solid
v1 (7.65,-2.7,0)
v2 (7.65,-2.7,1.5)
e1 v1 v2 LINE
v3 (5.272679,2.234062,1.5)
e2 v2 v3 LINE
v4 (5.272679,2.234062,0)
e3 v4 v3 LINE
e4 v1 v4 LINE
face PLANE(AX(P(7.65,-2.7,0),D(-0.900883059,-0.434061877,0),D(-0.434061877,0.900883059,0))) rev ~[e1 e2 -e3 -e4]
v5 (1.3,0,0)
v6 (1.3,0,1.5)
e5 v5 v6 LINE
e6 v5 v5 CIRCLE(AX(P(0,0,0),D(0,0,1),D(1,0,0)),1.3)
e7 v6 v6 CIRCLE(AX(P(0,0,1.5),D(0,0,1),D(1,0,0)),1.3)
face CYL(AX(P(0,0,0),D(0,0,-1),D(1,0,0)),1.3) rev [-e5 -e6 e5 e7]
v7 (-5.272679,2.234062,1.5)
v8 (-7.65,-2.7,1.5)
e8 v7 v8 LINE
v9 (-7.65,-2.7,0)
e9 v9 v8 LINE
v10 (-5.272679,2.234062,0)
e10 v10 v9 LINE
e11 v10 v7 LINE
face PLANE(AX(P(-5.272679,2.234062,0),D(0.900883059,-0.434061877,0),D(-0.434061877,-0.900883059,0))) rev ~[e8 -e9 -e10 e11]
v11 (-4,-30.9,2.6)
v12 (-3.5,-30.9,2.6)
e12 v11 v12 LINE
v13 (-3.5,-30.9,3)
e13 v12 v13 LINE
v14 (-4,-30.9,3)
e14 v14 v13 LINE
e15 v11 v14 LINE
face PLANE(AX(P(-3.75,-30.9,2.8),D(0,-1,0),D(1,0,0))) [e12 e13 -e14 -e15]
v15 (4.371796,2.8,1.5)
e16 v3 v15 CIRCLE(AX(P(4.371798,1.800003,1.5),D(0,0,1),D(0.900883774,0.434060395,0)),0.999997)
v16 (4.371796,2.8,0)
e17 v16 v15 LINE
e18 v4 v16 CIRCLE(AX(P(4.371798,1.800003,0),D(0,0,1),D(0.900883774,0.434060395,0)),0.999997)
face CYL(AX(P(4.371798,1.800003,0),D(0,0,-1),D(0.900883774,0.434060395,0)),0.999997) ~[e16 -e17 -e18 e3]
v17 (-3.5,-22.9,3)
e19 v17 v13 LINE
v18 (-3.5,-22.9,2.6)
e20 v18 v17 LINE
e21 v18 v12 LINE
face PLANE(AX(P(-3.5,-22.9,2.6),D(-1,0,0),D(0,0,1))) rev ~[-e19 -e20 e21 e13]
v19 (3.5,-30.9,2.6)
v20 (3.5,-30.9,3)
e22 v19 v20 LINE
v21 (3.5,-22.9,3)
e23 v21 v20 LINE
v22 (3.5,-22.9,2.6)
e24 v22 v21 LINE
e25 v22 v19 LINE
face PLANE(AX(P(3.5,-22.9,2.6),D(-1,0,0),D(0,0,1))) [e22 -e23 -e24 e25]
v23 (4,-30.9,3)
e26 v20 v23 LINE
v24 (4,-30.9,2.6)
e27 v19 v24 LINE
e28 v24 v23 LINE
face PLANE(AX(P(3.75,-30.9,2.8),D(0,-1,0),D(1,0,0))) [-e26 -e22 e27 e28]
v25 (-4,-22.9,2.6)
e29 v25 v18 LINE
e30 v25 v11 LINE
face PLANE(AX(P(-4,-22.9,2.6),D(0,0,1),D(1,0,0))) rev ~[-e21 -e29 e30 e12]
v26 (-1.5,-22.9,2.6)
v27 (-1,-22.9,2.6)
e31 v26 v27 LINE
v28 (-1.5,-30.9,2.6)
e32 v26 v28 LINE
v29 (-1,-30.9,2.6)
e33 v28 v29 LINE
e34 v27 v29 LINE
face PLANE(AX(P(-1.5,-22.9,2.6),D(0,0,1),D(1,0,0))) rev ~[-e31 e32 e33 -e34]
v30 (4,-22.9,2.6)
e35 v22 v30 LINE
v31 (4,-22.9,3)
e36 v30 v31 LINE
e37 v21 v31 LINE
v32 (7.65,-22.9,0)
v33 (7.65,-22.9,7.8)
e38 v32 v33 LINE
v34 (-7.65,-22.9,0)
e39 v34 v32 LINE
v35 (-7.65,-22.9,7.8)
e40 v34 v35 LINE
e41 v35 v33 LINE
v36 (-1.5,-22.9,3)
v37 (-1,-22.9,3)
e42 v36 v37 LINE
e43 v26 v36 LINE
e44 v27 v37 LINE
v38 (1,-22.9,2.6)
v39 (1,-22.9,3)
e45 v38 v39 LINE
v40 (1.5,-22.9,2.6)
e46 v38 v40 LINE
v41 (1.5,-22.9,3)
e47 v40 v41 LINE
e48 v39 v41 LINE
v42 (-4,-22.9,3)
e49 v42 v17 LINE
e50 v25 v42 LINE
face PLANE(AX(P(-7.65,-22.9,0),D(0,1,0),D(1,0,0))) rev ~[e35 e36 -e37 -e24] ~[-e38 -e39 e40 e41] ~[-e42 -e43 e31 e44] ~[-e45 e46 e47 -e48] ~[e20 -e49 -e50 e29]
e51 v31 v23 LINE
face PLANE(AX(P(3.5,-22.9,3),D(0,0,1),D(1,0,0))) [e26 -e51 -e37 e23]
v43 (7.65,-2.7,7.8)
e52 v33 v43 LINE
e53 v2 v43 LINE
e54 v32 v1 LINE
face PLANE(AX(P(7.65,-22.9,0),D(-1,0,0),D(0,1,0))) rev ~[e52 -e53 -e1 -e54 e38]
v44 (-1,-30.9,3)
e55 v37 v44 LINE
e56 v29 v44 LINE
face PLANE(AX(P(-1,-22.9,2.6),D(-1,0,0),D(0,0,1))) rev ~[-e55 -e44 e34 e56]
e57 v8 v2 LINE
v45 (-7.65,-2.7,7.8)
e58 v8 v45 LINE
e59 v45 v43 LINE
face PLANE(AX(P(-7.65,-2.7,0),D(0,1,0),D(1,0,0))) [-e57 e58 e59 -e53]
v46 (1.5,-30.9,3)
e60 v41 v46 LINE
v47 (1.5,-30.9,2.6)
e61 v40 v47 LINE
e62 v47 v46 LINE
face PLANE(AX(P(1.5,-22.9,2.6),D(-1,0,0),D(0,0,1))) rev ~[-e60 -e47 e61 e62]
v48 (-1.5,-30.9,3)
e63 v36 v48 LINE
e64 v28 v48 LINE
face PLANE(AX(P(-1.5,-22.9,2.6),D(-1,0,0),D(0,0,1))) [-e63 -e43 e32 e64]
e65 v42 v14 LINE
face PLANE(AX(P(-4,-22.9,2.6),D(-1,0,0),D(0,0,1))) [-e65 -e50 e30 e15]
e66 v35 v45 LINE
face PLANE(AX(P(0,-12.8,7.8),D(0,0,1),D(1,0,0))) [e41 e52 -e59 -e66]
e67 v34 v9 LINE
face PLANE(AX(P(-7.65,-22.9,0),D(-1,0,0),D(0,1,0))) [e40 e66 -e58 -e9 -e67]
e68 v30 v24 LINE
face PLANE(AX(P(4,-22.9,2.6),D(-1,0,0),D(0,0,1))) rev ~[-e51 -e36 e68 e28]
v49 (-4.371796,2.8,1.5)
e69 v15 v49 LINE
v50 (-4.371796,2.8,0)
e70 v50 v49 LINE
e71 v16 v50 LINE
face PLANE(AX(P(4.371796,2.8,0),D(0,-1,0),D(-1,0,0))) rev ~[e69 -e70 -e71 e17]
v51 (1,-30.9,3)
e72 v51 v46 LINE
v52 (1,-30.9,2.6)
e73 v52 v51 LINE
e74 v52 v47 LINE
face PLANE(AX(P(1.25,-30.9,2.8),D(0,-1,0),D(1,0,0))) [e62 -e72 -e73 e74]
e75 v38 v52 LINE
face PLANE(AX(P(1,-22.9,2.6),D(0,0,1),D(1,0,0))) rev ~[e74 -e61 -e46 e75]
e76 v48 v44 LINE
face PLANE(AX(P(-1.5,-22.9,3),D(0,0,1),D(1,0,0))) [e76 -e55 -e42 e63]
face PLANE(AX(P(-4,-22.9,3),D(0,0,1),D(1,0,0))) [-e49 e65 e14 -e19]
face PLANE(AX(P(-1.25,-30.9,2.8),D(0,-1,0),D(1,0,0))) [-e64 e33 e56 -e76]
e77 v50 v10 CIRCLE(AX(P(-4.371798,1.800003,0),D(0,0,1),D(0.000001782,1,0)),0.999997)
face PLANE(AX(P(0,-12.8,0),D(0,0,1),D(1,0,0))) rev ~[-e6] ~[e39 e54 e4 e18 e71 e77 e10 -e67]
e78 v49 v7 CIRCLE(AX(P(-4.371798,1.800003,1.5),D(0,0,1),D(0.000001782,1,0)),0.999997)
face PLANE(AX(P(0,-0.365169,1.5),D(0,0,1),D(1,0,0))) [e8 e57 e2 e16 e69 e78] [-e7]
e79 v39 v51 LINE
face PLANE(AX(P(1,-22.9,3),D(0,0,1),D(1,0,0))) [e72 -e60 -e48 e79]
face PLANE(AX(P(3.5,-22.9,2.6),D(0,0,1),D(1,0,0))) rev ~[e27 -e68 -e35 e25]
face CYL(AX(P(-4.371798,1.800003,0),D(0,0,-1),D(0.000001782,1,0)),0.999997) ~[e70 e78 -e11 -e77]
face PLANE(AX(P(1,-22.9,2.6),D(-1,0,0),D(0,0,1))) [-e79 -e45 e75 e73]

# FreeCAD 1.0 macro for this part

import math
import FreeCAD as App
import Part
import Sketcher
from FreeCAD import Vector
Q = App.Units.Quantity


def add_polygon(sketch, points):
    """Adds a closed chain of lines whose ends are joined by coincident constraints."""
    first, n = sketch.GeometryCount, len(points)
    for a, b in zip(points, points[1:] + points[:1]):
        sketch.addGeometry(Part.LineSegment(App.Vector(*a, 0), App.Vector(*b, 0)), False)
    for i in range(n):
        sketch.addConstraint(Sketcher.Constraint("Coincident", first + i, 2, first + (i + 1) % n, 1))

doc = App.newDocument("Part")
body = doc.addObject("PartDesign::Body", "Body")

sketch1 = doc.addObject("Sketcher::SketchObject", "Sketch")
body.addObject(sketch1)
sketch1.AttachmentSupport = (doc.XY_Plane, [""])
sketch1.MapMode = "FlatFace"
sketch1.addGeometry(Part.LineSegment(Vector(-5.3, 2.2, 0), Vector(-7.7, -2.7, 0)), False)
sketch1.addGeometry(Part.LineSegment(Vector(-7.7, -2.7, 0), Vector(7.7, -2.7, 0)), False)
sketch1.addGeometry(Part.LineSegment(Vector(7.7, -2.7, 0), Vector(5.3, 2.2, 0)), False)
sketch1.addGeometry(Part.ArcOfCircle(Part.Circle(Vector(4.4, 1.8, 0), Vector(0, 0, 1), 1), math.radians(26), math.radians(90)), False)
sketch1.addGeometry(Part.LineSegment(Vector(4.4, 2.8, 0), Vector(-4.4, 2.8, 0)), False)
sketch1.addGeometry(Part.ArcOfCircle(Part.Circle(Vector(-4.4, 1.8, 0), Vector(0, 0, 1), 1), math.radians(90), math.radians(154)), False)
sketch1.addGeometry(Part.Circle(Vector(0, 0, 0), Vector(0, 0, 1), 1.3), False)
sketch1.addConstraint(Sketcher.Constraint("Coincident", 0, 2, 1, 1))
sketch1.addConstraint(Sketcher.Constraint("Coincident", 1, 2, 2, 1))
sketch1.addConstraint(Sketcher.Constraint("Tangent", 2, 2, 3, 1))
sketch1.addConstraint(Sketcher.Constraint("Tangent", 3, 2, 4, 1))
sketch1.addConstraint(Sketcher.Constraint("Tangent", 4, 2, 5, 1))
sketch1.addConstraint(Sketcher.Constraint("Tangent", 5, 2, 0, 1))
sketch1.addConstraint(Sketcher.Constraint("Horizontal", 1))
sketch1.addConstraint(Sketcher.Constraint("Horizontal", 4))
sketch1.addConstraint(Sketcher.Constraint("Coincident", 6, 3, -1, 1))
sketch1.addConstraint(Sketcher.Constraint("Equal", 3, 5))
sketch1.addConstraint(Sketcher.Constraint("Symmetric", 2, 2, 5, 2, -2))
sketch1.addConstraint(Sketcher.Constraint("Diameter", 6, Q("2.6 mm")))
sketch1.addConstraint(Sketcher.Constraint("DistanceX", 1, 1, 1, 2, Q("15.3 mm")))
sketch1.addConstraint(Sketcher.Constraint("DistanceY", 0, 2, -1, 1, Q("2.7 mm")))
sketch1.addConstraint(Sketcher.Constraint("DistanceY", -1, 1, 3, 2, Q("2.8 mm")))
sketch1.addConstraint(Sketcher.Constraint("Radius", 3, Q("0.999997 mm")))
sketch1.addConstraint(Sketcher.Constraint("DistanceX", 4, 2, 4, 1, Q("8.743592 mm")))
pad1 = doc.addObject("PartDesign::Pad", "Pad")
body.addObject(pad1)
pad1.Profile = sketch1
pad1.Length = 1.5

sketch2 = doc.addObject("Sketcher::SketchObject", "Sketch001")
body.addObject(sketch2)
sketch2.AttachmentSupport = (doc.XY_Plane, [""])
sketch2.MapMode = "FlatFace"
add_polygon(sketch2, [(-8, -3), (-8, -23), (8, -23), (8, -3)])
sketch2.addConstraint(Sketcher.Constraint("Vertical", 0))
sketch2.addConstraint(Sketcher.Constraint("Horizontal", 1))
sketch2.addConstraint(Sketcher.Constraint("Vertical", 2))
sketch2.addConstraint(Sketcher.Constraint("Horizontal", 3))
sketch2.addConstraint(Sketcher.Constraint("DistanceX", 1, 1, 1, 2, Q("15.3 mm")))
sketch2.addConstraint(Sketcher.Constraint("DistanceY", 0, 2, 0, 1, Q("20.2 mm")))
sketch2.addConstraint(Sketcher.Constraint("DistanceY", 0, 2, -1, 1, Q("22.9 mm")))
sketch2.addConstraint(Sketcher.Constraint("DistanceX", 0, 2, -1, 1, Q("7.65 mm")))
pad2 = doc.addObject("PartDesign::Pad", "Pad001")
body.addObject(pad2)
pad2.Profile = sketch2
pad2.Length = 7.8

sketch3 = doc.addObject("Sketcher::SketchObject", "Sketch002")
body.addObject(sketch3)
sketch3.AttachmentSupport = (doc.XZ_Plane, [""])
sketch3.MapMode = "FlatFace"
sketch3.AttachmentOffset = App.Placement(Vector(0, 0, 22.9), App.Rotation())
add_polygon(sketch3, [(-4, 3), (-4, 2.6), (-3.5, 2.6), (-3.5, 3)])
add_polygon(sketch3, [(-1.5, 3), (-1.5, 2.6), (-1, 2.6), (-1, 3)])
add_polygon(sketch3, [(1, 3), (1, 2.6), (1.5, 2.6), (1.5, 3)])
add_polygon(sketch3, [(3.5, 3), (3.5, 2.6), (4, 2.6), (4, 3)])
sketch3.addConstraint(Sketcher.Constraint("Vertical", 0))
sketch3.addConstraint(Sketcher.Constraint("Horizontal", 1))
sketch3.addConstraint(Sketcher.Constraint("Vertical", 2))
sketch3.addConstraint(Sketcher.Constraint("Horizontal", 3))
sketch3.addConstraint(Sketcher.Constraint("Vertical", 4))
sketch3.addConstraint(Sketcher.Constraint("Horizontal", 5))
sketch3.addConstraint(Sketcher.Constraint("Vertical", 6))
sketch3.addConstraint(Sketcher.Constraint("Horizontal", 7))
sketch3.addConstraint(Sketcher.Constraint("Vertical", 8))
sketch3.addConstraint(Sketcher.Constraint("Horizontal", 9))
sketch3.addConstraint(Sketcher.Constraint("Vertical", 10))
sketch3.addConstraint(Sketcher.Constraint("Horizontal", 11))
sketch3.addConstraint(Sketcher.Constraint("Vertical", 12))
sketch3.addConstraint(Sketcher.Constraint("Horizontal", 13))
sketch3.addConstraint(Sketcher.Constraint("Vertical", 14))
sketch3.addConstraint(Sketcher.Constraint("Horizontal", 15))
sketch3.addConstraint(Sketcher.Constraint("Symmetric", 5, 2, 8, 2, -2))
sketch3.addConstraint(Sketcher.Constraint("Symmetric", 7, 2, 10, 2, -2))
sketch3.addConstraint(Sketcher.Constraint("Symmetric", 1, 2, 12, 2, -2))
sketch3.addConstraint(Sketcher.Constraint("Symmetric", 3, 2, 14, 2, -2))
sketch3.addConstraint(Sketcher.Constraint("Horizontal", 1, 2, 4, 2))
sketch3.addConstraint(Sketcher.Constraint("Horizontal", 3, 2, 6, 2))
sketch3.addConstraint(Sketcher.Constraint("Equal", 3, 5))
sketch3.addConstraint(Sketcher.Constraint("DistanceX", 1, 1, 1, 2, Q("0.5 mm")))
sketch3.addConstraint(Sketcher.Constraint("DistanceY", 0, 2, 0, 1, Q("0.4 mm")))
sketch3.addConstraint(Sketcher.Constraint("DistanceX", 0, 2, -1, 1, Q("4 mm")))
sketch3.addConstraint(Sketcher.Constraint("DistanceY", -1, 1, 2, 2, Q("3 mm")))
sketch3.addConstraint(Sketcher.Constraint("DistanceX", 5, 2, -1, 1, Q("1 mm")))
pad3 = doc.addObject("PartDesign::Pad", "Pad002")
body.addObject(pad3)
pad3.Profile = sketch3
pad3.Length = 8

doc.recompute()
